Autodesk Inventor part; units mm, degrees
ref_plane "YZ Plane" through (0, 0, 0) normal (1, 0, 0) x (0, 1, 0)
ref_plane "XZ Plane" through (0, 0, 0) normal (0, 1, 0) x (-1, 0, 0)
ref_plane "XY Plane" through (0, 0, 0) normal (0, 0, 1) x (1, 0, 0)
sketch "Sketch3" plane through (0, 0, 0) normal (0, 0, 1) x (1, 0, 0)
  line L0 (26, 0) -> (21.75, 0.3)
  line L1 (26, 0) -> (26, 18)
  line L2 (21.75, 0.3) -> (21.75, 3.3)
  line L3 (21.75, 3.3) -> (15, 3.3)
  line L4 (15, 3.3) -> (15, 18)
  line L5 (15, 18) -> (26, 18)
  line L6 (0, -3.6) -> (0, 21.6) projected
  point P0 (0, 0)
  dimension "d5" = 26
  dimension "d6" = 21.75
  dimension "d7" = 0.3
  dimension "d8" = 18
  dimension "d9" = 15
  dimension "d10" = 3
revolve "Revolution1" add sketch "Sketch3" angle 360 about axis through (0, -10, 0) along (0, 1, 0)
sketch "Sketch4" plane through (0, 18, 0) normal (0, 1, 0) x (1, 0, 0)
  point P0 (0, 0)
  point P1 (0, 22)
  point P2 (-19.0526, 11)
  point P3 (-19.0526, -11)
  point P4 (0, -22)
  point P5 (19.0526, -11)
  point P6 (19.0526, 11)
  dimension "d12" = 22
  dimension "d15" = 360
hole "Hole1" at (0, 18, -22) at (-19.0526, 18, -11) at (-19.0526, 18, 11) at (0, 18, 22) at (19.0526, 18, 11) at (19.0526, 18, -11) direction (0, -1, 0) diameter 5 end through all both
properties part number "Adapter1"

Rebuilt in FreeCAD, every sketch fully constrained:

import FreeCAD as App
import Part
import Sketcher

V = App.Vector
Q = App.Units.Quantity


def add_polygon(sketch, points):
    """Adds a closed chain of lines whose ends are joined by coincident constraints."""
    first, n = sketch.GeometryCount, len(points)
    for a, b in zip(points, points[1:] + points[:1]):
        sketch.addGeometry(Part.LineSegment(App.Vector(*a, 0), App.Vector(*b, 0)), False)
    for i in range(n):
        sketch.addConstraint(Sketcher.Constraint("Coincident", first + i, 2, first + (i + 1) % n, 1))

doc = App.newDocument("Part")
body = doc.addObject("PartDesign::Body", "Body")

# Sketch on XY plane
sketch1 = body.newObject("Sketcher::SketchObject", "Sketch")
sketch1.AttachmentSupport = (doc.getObject("XY_Plane"), [""])
sketch1.MapMode = "FlatFace"
add_polygon(sketch1, [(21.8, 0.3), (26, 0), (26, 18), (15, 18), (15, 3.3), (21.8, 3.3)])  # lines 0-5
sketch1.addConstraint([
    Sketcher.Constraint("Vertical", 1),
    Sketcher.Constraint("Horizontal", 2),
    Sketcher.Constraint("Vertical", 3),
    Sketcher.Constraint("Horizontal", 4),
    Sketcher.Constraint("Vertical", 5),
    Sketcher.Constraint("PointOnObject", 0, 2, -1),
    Sketcher.Constraint("DistanceY", 1, 1, 1, 2, Q("18 mm")),
    Sketcher.Constraint("DistanceY", 5, 2, 5, 1, Q("3 mm")),
    Sketcher.Constraint("DistanceX", -1, 1, 0, 2, Q("26 mm")),
    Sketcher.Constraint("DistanceX", -1, 1, 2, 2, Q("15 mm")),
    Sketcher.Constraint("DistanceY", -1, 1, 5, 2, Q("0.3 mm")),
    Sketcher.Constraint("DistanceX", -1, 1, 4, 2, Q("21.75 mm")),
])
revolution = body.newObject("PartDesign::Revolution", "Revolution")
revolution.Profile = sketch1
revolution.ReferenceAxis = (sketch1, ["V_Axis"])
revolution.Angle = 360

# Sketch on XZ plane
sketch2 = body.newObject("Sketcher::SketchObject", "Sketch001")
sketch2.AttachmentSupport = (doc.getObject("XZ_Plane"), [""])
sketch2.MapMode = "FlatFace"
sketch2.AttachmentOffset = App.Placement(V(0, 0, -18), App.Rotation())
sketch2.addGeometry([
    Part.Circle(V(0, -22, 0), V(0, 0, 1), 2.5),  # 0
    Part.Circle(V(-19.1, -11, 0), V(0, 0, 1), 2.5),  # 1
    Part.Circle(V(-19.1, 11, 0), V(0, 0, 1), 2.5),  # 2
    Part.Circle(V(0, 22, 0), V(0, 0, 1), 2.5),  # 3
    Part.Circle(V(19.1, 11, 0), V(0, 0, 1), 2.5),  # 4
    Part.Circle(V(19.1, -11, 0), V(0, 0, 1), 2.5),  # 5
], False)
sketch2.addConstraint([
    Sketcher.Constraint("Equal", 0, 1),
    Sketcher.Constraint("Equal", 1, 2),
    Sketcher.Constraint("Equal", 2, 3),
    Sketcher.Constraint("Equal", 3, 4),
    Sketcher.Constraint("Equal", 4, 5),
    Sketcher.Constraint("Symmetric", 0, 3, 3, 3, -1, 1),
    Sketcher.Constraint("Symmetric", 1, 3, 4, 3, -1, 1),
    Sketcher.Constraint("Symmetric", 2, 3, 5, 3, -1, 1),
    Sketcher.Constraint("Symmetric", 2, 3, 4, 3, -2),
    Sketcher.Constraint("PointOnObject", 0, 3, -2),
    Sketcher.Constraint("Diameter", 0, Q("5 mm")),
    Sketcher.Constraint("DistanceY", 0, 3, -1, 1, Q("22 mm")),
    Sketcher.Constraint("DistanceY", 1, 3, -1, 1, Q("11 mm")),
    Sketcher.Constraint("DistanceX", 1, 3, -1, 1, Q("19.0526 mm")),
])
doc.recompute()
hole = body.newObject("PartDesign::Hole", "Hole")
hole.Profile = sketch2
hole.ThreadType = "None"
hole.Diameter = 5
hole.DepthType = "ThroughAll"
hole.Reversed = True

doc.recompute()
